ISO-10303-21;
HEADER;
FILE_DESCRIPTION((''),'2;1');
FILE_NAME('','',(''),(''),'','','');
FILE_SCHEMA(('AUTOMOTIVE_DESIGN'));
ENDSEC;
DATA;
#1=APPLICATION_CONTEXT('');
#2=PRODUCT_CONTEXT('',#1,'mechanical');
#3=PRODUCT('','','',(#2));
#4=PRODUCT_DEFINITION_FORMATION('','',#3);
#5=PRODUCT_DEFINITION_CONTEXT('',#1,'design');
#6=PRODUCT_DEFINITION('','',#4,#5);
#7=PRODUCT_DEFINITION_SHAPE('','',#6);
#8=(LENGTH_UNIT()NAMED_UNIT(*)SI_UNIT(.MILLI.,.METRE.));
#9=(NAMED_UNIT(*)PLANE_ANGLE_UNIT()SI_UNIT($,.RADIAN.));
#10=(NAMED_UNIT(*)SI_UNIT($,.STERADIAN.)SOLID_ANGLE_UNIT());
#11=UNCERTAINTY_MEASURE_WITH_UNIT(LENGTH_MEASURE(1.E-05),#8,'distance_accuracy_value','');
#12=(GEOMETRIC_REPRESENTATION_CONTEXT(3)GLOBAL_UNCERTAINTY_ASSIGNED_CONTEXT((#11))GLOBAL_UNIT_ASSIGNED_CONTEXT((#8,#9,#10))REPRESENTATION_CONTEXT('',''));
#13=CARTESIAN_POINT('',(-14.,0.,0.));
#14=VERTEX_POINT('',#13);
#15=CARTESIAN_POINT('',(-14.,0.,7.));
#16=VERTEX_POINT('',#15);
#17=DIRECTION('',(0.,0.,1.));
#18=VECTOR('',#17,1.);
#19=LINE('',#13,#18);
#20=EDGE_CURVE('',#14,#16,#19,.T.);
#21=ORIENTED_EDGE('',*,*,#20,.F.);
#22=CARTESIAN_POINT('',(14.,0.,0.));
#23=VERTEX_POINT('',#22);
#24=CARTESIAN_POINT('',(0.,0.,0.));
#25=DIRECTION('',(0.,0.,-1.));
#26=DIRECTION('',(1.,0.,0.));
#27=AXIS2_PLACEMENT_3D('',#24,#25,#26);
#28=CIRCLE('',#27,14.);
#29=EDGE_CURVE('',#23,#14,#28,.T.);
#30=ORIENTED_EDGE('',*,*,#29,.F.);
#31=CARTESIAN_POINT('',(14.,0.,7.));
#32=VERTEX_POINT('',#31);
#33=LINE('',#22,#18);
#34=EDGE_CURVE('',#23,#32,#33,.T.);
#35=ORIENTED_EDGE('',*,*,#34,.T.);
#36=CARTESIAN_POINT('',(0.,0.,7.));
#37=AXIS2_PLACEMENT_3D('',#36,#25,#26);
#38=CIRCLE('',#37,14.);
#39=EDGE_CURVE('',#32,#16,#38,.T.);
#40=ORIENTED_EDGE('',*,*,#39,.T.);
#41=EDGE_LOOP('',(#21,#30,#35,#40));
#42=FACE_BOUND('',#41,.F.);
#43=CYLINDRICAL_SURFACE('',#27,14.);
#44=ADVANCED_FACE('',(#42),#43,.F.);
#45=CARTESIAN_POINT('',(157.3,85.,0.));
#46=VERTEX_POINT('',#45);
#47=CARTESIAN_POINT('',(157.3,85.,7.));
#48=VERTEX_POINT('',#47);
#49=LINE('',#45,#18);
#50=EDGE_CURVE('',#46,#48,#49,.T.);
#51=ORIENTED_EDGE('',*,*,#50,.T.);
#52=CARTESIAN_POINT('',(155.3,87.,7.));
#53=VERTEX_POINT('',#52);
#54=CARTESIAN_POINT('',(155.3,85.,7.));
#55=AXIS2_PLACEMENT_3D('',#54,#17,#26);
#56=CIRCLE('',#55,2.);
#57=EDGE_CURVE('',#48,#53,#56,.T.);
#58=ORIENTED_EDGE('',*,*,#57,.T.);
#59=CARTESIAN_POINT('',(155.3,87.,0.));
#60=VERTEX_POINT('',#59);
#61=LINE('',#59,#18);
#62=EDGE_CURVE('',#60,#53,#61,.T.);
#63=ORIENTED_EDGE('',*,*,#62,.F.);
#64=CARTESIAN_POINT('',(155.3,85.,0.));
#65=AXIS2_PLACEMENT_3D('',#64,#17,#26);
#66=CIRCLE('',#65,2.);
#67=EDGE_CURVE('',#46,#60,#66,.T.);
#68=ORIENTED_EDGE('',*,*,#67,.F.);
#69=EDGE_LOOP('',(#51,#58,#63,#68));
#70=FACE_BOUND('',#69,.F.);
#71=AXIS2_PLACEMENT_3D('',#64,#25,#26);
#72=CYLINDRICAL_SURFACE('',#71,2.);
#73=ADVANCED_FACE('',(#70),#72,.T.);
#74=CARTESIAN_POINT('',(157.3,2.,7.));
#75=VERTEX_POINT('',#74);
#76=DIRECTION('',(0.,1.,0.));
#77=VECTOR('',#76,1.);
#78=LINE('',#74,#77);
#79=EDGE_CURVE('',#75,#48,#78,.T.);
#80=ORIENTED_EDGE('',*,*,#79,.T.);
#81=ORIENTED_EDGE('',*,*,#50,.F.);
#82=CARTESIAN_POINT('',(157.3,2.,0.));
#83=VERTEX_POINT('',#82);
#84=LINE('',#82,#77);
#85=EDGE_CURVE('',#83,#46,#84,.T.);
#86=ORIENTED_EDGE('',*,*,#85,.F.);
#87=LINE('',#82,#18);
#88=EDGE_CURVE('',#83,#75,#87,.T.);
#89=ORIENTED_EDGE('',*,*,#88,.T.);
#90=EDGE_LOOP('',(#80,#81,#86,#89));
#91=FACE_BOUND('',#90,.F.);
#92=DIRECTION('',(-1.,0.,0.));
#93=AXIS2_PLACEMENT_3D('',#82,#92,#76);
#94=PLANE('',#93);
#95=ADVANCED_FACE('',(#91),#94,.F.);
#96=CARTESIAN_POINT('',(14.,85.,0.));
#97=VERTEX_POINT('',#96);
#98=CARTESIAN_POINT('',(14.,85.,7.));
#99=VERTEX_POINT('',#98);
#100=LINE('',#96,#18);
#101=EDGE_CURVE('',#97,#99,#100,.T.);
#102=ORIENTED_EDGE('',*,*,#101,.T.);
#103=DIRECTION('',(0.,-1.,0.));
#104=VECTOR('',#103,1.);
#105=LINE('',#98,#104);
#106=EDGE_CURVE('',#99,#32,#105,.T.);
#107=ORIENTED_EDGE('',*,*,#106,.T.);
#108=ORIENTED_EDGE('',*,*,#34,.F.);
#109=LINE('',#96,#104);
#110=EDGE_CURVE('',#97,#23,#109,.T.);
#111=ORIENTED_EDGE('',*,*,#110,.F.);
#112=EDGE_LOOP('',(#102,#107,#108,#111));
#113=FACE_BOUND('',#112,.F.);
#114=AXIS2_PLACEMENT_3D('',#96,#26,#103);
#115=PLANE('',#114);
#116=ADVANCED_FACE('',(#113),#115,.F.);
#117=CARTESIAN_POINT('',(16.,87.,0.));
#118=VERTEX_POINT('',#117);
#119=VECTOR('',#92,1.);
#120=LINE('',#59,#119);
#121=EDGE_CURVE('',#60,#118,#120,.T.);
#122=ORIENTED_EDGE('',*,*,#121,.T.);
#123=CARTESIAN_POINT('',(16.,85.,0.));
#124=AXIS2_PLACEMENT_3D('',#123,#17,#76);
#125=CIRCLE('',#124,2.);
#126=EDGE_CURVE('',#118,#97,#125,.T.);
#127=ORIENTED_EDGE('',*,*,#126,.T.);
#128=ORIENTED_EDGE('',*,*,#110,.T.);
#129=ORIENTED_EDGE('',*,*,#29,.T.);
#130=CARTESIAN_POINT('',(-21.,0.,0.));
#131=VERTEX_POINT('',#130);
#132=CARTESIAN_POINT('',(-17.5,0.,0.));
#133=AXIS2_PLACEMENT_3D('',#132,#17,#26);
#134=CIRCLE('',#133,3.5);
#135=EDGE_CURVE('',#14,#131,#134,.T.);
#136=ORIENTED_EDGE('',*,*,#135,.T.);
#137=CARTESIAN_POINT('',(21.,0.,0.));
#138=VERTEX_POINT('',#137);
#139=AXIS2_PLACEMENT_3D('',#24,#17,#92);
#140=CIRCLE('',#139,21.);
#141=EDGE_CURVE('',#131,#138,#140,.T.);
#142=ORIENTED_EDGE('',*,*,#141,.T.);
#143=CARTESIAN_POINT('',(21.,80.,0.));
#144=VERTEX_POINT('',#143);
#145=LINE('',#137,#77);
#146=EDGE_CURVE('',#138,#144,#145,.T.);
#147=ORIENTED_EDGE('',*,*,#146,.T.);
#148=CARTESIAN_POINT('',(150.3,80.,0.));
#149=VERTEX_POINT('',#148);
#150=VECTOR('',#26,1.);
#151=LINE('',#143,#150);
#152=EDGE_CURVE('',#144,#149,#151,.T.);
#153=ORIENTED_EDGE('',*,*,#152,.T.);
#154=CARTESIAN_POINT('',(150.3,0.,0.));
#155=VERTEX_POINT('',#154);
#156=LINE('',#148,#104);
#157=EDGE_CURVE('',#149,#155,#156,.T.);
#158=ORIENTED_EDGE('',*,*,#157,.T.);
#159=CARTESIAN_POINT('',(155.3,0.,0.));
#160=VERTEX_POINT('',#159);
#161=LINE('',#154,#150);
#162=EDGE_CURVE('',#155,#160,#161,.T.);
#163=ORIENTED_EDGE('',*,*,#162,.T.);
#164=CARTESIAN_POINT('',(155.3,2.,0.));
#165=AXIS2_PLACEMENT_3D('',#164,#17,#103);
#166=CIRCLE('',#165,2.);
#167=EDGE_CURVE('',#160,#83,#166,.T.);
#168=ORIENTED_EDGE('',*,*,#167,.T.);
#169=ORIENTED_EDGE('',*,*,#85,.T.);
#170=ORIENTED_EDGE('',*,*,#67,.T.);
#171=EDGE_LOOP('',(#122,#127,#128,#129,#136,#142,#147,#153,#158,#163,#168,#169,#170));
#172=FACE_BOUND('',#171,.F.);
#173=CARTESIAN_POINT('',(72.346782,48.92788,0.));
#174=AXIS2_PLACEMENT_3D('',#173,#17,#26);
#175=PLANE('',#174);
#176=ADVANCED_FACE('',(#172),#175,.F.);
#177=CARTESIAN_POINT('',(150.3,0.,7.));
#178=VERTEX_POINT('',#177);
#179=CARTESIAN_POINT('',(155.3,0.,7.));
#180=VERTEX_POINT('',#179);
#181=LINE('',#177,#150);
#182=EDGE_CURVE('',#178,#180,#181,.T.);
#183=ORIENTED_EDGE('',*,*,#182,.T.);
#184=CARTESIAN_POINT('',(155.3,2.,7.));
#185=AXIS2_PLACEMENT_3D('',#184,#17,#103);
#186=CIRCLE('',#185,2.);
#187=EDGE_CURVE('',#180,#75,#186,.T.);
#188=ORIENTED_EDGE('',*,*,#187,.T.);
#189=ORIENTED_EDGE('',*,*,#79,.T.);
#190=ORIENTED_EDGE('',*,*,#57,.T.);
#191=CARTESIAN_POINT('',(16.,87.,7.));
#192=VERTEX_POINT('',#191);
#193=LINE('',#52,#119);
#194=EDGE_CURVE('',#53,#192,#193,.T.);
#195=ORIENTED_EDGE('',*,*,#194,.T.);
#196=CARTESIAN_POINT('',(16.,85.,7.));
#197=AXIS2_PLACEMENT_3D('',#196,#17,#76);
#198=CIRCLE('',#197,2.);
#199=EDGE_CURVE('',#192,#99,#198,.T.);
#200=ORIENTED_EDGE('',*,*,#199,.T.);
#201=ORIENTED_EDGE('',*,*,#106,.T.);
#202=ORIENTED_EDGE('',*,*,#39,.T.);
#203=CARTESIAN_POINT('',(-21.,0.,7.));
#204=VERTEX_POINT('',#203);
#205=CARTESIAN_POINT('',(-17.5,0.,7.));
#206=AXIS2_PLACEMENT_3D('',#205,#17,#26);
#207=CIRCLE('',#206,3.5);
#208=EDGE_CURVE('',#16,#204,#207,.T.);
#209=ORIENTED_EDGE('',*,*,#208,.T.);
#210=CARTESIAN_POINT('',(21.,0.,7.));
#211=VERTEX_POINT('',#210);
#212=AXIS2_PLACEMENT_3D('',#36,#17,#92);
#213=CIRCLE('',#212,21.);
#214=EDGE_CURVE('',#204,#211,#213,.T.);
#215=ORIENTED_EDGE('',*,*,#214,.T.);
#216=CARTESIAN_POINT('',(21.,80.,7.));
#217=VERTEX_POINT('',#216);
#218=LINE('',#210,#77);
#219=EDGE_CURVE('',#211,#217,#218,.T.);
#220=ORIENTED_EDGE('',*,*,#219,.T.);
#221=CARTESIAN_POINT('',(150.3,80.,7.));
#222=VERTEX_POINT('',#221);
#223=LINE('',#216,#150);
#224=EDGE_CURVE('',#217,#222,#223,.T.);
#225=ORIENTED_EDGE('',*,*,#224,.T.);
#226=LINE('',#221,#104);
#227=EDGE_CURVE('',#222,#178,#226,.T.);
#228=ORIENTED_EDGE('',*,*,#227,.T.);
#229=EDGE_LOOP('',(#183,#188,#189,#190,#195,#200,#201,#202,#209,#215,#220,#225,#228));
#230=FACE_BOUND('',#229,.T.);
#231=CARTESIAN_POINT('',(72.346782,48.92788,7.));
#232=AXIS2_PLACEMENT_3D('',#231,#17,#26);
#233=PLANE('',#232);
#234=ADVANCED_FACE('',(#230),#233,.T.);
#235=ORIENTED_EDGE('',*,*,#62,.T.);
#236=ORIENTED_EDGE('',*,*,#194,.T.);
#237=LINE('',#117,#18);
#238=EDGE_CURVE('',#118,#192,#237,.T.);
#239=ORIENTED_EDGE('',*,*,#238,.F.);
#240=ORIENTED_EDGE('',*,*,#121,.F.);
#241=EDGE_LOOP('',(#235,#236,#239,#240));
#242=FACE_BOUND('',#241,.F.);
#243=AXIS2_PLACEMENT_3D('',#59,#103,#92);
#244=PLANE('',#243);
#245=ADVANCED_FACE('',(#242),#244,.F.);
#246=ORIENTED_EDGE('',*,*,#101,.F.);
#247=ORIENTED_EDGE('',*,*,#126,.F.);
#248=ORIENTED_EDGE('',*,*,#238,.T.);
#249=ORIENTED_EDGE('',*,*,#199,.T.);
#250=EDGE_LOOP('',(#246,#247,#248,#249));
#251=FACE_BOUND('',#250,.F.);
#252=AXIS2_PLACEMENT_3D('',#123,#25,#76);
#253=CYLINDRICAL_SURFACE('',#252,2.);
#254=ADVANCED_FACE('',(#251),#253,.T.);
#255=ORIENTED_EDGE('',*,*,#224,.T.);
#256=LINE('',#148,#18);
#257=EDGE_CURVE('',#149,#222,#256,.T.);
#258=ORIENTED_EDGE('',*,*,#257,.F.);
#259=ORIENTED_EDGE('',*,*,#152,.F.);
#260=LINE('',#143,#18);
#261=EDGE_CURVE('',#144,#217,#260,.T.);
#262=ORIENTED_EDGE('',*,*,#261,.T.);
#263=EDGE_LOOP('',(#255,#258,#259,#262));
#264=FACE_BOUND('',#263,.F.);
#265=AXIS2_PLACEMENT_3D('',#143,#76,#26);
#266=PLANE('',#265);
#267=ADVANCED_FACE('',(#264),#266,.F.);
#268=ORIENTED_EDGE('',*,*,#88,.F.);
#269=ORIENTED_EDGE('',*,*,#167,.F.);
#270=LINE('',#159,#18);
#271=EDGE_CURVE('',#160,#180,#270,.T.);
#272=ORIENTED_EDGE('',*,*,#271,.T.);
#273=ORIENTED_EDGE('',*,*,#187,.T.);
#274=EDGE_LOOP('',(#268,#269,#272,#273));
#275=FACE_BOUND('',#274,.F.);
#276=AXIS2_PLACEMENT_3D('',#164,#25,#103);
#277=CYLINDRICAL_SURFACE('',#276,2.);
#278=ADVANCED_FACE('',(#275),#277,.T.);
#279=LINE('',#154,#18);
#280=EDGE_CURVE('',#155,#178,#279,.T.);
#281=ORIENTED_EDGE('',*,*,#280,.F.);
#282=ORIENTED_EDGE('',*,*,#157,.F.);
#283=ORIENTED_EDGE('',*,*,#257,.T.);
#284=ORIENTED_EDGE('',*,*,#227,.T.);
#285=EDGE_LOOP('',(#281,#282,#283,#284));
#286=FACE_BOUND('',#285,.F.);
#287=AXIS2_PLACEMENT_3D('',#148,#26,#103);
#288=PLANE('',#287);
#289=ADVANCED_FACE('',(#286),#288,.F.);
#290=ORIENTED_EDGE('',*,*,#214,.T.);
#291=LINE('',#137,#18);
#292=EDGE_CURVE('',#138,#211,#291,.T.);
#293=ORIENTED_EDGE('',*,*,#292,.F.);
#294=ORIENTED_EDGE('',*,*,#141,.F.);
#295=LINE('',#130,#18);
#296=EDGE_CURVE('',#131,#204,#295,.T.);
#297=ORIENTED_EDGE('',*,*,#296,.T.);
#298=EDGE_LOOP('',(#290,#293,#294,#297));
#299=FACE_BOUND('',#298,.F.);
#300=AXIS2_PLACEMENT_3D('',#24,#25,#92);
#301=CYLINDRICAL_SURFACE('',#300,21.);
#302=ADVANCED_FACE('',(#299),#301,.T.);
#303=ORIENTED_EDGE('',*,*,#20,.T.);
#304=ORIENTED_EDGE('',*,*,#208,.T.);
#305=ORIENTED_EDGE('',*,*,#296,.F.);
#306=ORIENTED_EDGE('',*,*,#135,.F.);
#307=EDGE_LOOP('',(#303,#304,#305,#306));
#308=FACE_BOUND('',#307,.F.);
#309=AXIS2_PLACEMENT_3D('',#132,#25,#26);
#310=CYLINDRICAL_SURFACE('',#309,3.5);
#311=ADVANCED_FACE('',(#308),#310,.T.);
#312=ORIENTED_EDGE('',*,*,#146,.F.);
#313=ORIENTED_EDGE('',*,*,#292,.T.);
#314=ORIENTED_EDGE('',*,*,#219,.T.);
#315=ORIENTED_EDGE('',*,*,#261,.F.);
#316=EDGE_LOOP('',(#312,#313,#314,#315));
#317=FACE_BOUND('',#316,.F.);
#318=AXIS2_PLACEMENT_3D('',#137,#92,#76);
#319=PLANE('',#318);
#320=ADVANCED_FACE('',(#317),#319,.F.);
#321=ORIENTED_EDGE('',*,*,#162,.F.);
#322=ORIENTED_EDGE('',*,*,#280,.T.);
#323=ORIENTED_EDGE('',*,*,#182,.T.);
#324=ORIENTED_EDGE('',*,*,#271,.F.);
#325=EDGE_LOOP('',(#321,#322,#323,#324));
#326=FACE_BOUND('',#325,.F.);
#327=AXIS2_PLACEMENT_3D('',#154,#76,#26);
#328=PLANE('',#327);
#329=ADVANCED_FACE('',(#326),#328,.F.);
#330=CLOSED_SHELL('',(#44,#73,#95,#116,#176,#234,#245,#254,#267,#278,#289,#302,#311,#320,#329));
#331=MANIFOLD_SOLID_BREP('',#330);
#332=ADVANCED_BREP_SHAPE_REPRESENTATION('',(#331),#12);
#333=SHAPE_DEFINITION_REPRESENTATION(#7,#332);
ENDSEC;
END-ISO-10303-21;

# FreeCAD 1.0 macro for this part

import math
import FreeCAD as App
import Part
import Sketcher

doc = App.newDocument("Part")
body = doc.addObject("PartDesign::Body", "Body")

sketch1 = body.newObject("Sketcher::SketchObject", "Sketch")
sketch1.AttachmentSupport = (doc.getObject("XY_Plane"), [""])
sketch1.MapMode = "FlatFace"
sketch1.addGeometry(Part.ArcOfCircle(Part.Circle(App.Vector(0, 0, 0), App.Vector(0, 0, 1), 14), math.radians(180), math.radians(360)), False)
sketch1.addGeometry(Part.ArcOfCircle(Part.Circle(App.Vector(-17.5, 0, 0), App.Vector(0, 0, 1), 3.5), math.radians(0), math.radians(180)), False)
sketch1.addGeometry(Part.ArcOfCircle(Part.Circle(App.Vector(0, 0, 0), App.Vector(0, 0, 1), 21), math.radians(180), math.radians(360)), False)
sketch1.addGeometry(Part.LineSegment(App.Vector(21, 0, 0), App.Vector(21, 80, 0)), False)
sketch1.addGeometry(Part.LineSegment(App.Vector(21, 80, 0), App.Vector(150.3, 80, 0)), False)
sketch1.addGeometry(Part.LineSegment(App.Vector(150.3, 80, 0), App.Vector(150.3, 0, 0)), False)
sketch1.addGeometry(Part.LineSegment(App.Vector(150.3, 0, 0), App.Vector(155.3, 0, 0)), False)
sketch1.addGeometry(Part.ArcOfCircle(Part.Circle(App.Vector(155.3, 2, 0), App.Vector(0, 0, 1), 2), math.radians(-90), math.radians(0)), False)
sketch1.addGeometry(Part.LineSegment(App.Vector(157.3, 2, 0), App.Vector(157.3, 85, 0)), False)
sketch1.addGeometry(Part.ArcOfCircle(Part.Circle(App.Vector(155.3, 85, 0), App.Vector(0, 0, 1), 2), math.radians(0), math.radians(90)), False)
sketch1.addGeometry(Part.LineSegment(App.Vector(155.3, 87, 0), App.Vector(16, 87, 0)), False)
sketch1.addGeometry(Part.ArcOfCircle(Part.Circle(App.Vector(16, 85, 0), App.Vector(0, 0, 1), 2), math.radians(90), math.radians(180)), False)
sketch1.addGeometry(Part.LineSegment(App.Vector(14, 85, 0), App.Vector(14, 0, 0)), False)
sketch1.addConstraint(Sketcher.Constraint("Tangent", 0, 1, 1, 1))
sketch1.addConstraint(Sketcher.Constraint("Tangent", 1, 2, 2, 1))
sketch1.addConstraint(Sketcher.Constraint("Tangent", 2, 2, 3, 1))
sketch1.addConstraint(Sketcher.Constraint("Coincident", 3, 2, 4, 1))
sketch1.addConstraint(Sketcher.Constraint("Coincident", 4, 2, 5, 1))
sketch1.addConstraint(Sketcher.Constraint("Coincident", 5, 2, 6, 1))
sketch1.addConstraint(Sketcher.Constraint("Tangent", 6, 2, 7, 1))
sketch1.addConstraint(Sketcher.Constraint("Tangent", 7, 2, 8, 1))
sketch1.addConstraint(Sketcher.Constraint("Tangent", 8, 2, 9, 1))
sketch1.addConstraint(Sketcher.Constraint("Tangent", 9, 2, 10, 1))
sketch1.addConstraint(Sketcher.Constraint("Tangent", 10, 2, 11, 1))
sketch1.addConstraint(Sketcher.Constraint("Tangent", 11, 2, 12, 1))
sketch1.addConstraint(Sketcher.Constraint("Tangent", 12, 2, 0, 2))
sketch1.addConstraint(Sketcher.Constraint("Vertical", 3))
sketch1.addConstraint(Sketcher.Constraint("Horizontal", 4))
sketch1.addConstraint(Sketcher.Constraint("Vertical", 5))
sketch1.addConstraint(Sketcher.Constraint("Horizontal", 6))
sketch1.addConstraint(Sketcher.Constraint("Vertical", 8))
sketch1.addConstraint(Sketcher.Constraint("Horizontal", 10))
sketch1.addConstraint(Sketcher.Constraint("Vertical", 12))
sketch1.addConstraint(Sketcher.Constraint("Coincident", 0, 3, -1, 1))
sketch1.addConstraint(Sketcher.Constraint("Coincident", 2, 3, -1, 1))
sketch1.addConstraint(Sketcher.Constraint("Equal", 7, 9))
sketch1.addConstraint(Sketcher.Constraint("Equal", 9, 11))
sketch1.addConstraint(Sketcher.Constraint("PointOnObject", 1, 3, -1))
sketch1.addConstraint(Sketcher.Constraint("PointOnObject", 5, 2, -1))
sketch1.addConstraint(Sketcher.Constraint("Radius", 0, 14.0))
sketch1.addConstraint(Sketcher.Constraint("Radius", 2, 21.0))
sketch1.addConstraint(Sketcher.Constraint("Radius", 7, 2.0))
sketch1.addConstraint(Sketcher.Constraint("DistanceX", 6, 1, 6, 2, 5.0))
sketch1.addConstraint(Sketcher.Constraint("DistanceY", 3, 1, 3, 2, 80.0))
sketch1.addConstraint(Sketcher.Constraint("DistanceY", 8, 1, 8, 2, 83.0))
sketch1.addConstraint(Sketcher.Constraint("DistanceX", 4, 1, 4, 2, 129.3))
pad1 = body.newObject("PartDesign::Pad", "Pad")
pad1.Profile = sketch1
pad1.Length = 7

doc.recompute()
